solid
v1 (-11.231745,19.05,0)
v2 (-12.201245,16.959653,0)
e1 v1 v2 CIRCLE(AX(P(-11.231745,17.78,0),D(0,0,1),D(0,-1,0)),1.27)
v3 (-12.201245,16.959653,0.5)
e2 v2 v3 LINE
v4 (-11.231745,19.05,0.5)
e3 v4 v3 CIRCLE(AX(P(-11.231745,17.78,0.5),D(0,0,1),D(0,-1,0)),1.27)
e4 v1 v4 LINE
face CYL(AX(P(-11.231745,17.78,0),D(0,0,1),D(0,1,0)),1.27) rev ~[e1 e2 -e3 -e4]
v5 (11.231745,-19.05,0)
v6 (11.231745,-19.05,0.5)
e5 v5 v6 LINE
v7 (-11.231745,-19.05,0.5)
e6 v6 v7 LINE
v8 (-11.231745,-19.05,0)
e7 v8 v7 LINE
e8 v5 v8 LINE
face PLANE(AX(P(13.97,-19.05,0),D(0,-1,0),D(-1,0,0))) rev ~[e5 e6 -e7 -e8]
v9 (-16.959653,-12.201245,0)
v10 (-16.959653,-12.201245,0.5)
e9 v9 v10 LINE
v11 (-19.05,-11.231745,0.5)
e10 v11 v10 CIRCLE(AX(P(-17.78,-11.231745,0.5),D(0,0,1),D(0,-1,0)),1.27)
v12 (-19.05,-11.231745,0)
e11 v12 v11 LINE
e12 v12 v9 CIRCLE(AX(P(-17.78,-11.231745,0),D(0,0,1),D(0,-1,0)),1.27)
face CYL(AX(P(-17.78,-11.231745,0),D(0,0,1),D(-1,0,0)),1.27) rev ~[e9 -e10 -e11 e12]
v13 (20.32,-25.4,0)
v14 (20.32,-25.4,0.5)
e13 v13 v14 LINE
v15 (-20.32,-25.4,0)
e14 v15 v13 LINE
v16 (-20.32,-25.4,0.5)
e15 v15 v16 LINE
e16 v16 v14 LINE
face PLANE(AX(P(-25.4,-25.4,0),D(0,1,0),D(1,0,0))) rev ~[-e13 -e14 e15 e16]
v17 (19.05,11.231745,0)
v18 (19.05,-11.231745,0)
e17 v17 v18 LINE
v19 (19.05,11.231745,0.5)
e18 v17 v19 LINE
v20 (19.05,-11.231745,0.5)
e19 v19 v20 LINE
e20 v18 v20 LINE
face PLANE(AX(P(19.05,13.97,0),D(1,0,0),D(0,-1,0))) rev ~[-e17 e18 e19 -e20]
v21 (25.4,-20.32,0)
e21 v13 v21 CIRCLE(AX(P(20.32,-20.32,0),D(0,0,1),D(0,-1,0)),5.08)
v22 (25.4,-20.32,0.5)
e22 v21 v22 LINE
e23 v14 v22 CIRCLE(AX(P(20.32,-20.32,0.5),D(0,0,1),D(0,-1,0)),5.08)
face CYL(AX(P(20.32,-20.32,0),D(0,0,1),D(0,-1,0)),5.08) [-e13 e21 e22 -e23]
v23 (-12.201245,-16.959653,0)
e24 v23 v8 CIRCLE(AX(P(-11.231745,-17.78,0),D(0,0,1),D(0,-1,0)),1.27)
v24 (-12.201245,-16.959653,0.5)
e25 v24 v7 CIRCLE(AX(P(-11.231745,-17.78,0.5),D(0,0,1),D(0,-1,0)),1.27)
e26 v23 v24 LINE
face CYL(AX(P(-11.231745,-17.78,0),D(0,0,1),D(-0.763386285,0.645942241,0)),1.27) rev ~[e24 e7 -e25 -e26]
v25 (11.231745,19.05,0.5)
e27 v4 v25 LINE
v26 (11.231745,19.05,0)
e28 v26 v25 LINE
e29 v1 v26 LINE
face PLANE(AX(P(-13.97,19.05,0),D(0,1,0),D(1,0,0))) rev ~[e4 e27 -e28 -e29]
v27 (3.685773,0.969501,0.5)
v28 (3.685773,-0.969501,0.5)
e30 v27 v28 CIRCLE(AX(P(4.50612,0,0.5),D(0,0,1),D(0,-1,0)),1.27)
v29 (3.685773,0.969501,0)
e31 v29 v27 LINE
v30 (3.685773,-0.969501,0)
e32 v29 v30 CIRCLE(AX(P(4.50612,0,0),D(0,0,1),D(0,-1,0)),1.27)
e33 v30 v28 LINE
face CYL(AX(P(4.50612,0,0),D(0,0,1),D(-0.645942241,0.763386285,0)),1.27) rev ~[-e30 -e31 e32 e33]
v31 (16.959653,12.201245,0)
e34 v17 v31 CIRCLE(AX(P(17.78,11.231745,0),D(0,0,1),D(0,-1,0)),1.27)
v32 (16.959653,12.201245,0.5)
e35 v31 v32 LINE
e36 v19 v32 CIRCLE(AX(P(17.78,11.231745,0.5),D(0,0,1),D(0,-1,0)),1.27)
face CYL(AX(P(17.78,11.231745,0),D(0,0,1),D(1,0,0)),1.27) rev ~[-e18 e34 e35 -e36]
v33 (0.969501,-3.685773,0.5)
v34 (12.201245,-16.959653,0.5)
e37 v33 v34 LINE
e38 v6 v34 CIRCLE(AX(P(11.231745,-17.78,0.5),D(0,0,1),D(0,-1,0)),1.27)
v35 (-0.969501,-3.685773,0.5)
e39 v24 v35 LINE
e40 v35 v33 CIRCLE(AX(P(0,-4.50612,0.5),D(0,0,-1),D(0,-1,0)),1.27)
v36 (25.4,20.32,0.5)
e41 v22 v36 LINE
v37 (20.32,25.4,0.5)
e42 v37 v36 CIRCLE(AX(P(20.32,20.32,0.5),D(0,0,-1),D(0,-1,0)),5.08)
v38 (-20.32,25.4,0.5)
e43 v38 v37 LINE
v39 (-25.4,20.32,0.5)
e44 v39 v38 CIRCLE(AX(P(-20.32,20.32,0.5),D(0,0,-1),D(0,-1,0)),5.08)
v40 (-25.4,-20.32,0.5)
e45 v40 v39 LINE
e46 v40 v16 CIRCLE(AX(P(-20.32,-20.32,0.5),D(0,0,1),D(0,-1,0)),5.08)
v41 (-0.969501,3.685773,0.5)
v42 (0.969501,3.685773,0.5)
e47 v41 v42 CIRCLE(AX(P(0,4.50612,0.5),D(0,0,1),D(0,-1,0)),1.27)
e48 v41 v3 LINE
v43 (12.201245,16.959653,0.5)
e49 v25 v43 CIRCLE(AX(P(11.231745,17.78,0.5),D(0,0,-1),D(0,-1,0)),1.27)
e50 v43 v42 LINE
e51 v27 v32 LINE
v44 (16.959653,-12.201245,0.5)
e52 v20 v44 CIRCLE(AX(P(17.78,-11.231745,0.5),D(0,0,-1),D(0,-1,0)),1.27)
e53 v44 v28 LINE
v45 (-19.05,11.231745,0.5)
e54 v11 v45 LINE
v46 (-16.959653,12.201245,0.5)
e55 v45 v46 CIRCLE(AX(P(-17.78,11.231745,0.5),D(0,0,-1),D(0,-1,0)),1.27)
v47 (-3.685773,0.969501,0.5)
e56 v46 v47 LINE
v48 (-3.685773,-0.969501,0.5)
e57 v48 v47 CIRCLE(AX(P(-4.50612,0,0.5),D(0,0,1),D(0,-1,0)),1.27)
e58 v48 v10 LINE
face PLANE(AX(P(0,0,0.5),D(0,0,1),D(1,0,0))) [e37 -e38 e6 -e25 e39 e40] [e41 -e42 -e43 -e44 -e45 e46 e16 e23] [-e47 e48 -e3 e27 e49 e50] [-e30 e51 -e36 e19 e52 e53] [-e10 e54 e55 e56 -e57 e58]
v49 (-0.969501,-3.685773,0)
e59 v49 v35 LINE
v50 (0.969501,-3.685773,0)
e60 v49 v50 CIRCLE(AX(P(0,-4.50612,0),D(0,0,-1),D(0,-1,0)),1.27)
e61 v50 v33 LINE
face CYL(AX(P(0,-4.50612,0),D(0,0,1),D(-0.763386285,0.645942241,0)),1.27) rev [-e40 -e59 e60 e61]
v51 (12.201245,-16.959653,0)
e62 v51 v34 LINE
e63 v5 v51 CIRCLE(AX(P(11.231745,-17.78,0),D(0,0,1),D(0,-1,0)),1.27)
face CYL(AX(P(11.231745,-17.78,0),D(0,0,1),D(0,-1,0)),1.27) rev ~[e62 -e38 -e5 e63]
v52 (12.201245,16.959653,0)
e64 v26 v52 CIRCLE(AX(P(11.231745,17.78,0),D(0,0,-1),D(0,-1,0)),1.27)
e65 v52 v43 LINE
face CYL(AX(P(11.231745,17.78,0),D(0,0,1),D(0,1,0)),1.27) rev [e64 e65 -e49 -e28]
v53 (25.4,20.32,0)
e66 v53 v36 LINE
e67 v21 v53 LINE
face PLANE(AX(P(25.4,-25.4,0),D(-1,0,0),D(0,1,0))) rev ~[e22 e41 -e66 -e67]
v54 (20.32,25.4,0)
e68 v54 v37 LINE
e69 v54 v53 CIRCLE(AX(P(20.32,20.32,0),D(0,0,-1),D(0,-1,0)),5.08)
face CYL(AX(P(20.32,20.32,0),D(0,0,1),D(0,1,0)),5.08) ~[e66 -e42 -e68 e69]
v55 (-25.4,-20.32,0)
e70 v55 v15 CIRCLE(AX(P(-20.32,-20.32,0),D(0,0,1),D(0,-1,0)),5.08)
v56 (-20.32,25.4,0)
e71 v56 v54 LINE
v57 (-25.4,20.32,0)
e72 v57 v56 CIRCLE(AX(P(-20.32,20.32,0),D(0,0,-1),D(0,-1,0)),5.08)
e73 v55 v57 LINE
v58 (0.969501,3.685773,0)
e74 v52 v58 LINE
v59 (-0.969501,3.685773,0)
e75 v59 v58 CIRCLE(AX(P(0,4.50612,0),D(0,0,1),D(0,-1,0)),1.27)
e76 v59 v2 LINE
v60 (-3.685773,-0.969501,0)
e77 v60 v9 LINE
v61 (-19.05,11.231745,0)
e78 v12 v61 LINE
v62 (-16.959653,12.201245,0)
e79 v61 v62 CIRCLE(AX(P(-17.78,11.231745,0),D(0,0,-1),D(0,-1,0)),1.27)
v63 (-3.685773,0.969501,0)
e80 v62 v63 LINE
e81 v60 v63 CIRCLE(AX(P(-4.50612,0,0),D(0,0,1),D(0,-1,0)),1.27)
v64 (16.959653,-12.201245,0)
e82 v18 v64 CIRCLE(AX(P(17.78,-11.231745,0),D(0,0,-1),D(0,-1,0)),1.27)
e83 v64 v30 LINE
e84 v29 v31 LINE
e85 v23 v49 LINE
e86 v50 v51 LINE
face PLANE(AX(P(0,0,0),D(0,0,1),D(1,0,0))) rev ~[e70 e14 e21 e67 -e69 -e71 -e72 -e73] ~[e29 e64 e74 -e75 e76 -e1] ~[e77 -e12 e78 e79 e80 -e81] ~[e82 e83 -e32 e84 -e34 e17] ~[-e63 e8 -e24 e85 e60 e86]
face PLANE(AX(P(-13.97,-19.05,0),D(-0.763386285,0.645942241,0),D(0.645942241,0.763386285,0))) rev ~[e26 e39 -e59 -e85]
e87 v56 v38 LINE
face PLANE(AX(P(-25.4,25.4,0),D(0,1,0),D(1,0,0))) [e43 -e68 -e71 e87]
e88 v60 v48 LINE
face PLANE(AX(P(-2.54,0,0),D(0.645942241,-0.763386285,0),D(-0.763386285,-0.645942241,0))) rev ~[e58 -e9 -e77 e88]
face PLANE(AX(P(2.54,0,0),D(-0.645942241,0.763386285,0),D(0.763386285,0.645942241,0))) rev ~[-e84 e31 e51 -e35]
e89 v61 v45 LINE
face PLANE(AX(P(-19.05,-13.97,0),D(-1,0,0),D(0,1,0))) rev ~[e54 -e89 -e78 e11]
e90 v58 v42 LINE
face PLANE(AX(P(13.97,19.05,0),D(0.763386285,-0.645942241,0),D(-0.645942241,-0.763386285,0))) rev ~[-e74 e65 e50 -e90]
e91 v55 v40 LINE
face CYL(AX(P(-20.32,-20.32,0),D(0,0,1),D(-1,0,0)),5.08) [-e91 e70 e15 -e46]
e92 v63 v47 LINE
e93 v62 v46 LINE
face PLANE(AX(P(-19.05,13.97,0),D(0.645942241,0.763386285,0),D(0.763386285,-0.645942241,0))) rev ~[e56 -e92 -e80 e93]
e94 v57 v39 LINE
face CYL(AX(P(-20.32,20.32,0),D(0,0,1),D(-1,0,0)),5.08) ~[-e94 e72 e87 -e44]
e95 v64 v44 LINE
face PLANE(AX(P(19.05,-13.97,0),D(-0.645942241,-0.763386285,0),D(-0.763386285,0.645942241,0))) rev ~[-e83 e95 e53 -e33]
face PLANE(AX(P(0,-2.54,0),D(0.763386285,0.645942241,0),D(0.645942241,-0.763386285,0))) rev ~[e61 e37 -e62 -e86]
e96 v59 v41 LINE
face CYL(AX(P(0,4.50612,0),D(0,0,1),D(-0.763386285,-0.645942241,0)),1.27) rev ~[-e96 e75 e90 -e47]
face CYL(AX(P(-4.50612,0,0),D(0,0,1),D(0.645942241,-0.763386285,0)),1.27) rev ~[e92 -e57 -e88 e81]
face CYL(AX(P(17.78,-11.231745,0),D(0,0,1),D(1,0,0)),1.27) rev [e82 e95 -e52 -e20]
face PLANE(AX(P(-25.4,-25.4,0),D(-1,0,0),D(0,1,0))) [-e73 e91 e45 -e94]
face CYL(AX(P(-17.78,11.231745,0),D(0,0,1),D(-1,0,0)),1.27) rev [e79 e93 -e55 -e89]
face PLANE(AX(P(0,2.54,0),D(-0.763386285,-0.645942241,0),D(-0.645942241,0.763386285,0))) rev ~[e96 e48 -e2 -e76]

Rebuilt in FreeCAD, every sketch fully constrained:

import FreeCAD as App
import Part
import Sketcher
from FreeCAD import Vector
Q = App.Units.Quantity


def edges_at(feature, points):
    """Names of the edges that pass closest to the given points."""
    edges = feature.Shape.Edges
    near = lambda p: min(range(len(edges)), key=lambda i: edges[i].distToShape(Part.Vertex(*p))[0])
    return sorted({f"Edge{near(p) + 1}" for p in points})


def add_polygon(sketch, points):
    """Adds a closed chain of lines whose ends are joined by coincident constraints."""
    first, n = sketch.GeometryCount, len(points)
    for a, b in zip(points, points[1:] + points[:1]):
        sketch.addGeometry(Part.LineSegment(App.Vector(*a, 0), App.Vector(*b, 0)), False)
    for i in range(n):
        sketch.addConstraint(Sketcher.Constraint("Coincident", first + i, 2, first + (i + 1) % n, 1))

doc = App.newDocument("Part")
body = doc.addObject("PartDesign::Body", "Body")

# Sketch on XY plane
sketch1 = body.newObject("Sketcher::SketchObject", "Sketch")
sketch1.AttachmentSupport = (doc.getObject("XY_Plane"), [""])
sketch1.MapMode = "FlatFace"
add_polygon(sketch1, [(-25, 25), (-25, -25), (25, -25), (25, 25)])  # lines 0-3
add_polygon(sketch1, [(-14, -19), (0, -3), (14, -19)])  # lines 4-6
add_polygon(sketch1, [(-19, -14), (-19, 14), (-3, 0)])  # lines 7-9
add_polygon(sketch1, [(19, 14), (19, -14), (3, 0)])  # lines 10-12
add_polygon(sketch1, [(-14, 19), (14, 19), (0, 3)])  # lines 13-15
sketch1.addConstraint(Sketcher.Constraint("Vertical", 0))
sketch1.addConstraint(Sketcher.Constraint("Horizontal", 1))
sketch1.addConstraint(Sketcher.Constraint("Vertical", 2))
sketch1.addConstraint(Sketcher.Constraint("Horizontal", 3))
sketch1.addConstraint(Sketcher.Constraint("Horizontal", 6))
sketch1.addConstraint(Sketcher.Constraint("Vertical", 7))
sketch1.addConstraint(Sketcher.Constraint("Vertical", 10))
sketch1.addConstraint(Sketcher.Constraint("Horizontal", 13))
sketch1.addConstraint(Sketcher.Constraint("Symmetric", 0, 2, 2, 2, -1, 1))
sketch1.addConstraint(Sketcher.Constraint("Symmetric", 7, 2, 10, 2, -1, 1))
sketch1.addConstraint(Sketcher.Constraint("Symmetric", 8, 2, 11, 2, -1, 1))
sketch1.addConstraint(Sketcher.Constraint("Symmetric", 6, 2, 13, 2, -1, 1))
sketch1.addConstraint(Sketcher.Constraint("Symmetric", 4, 2, 14, 2, -1, 1))
sketch1.addConstraint(Sketcher.Constraint("PointOnObject", 4, 2, -2))
sketch1.addConstraint(Sketcher.Constraint("PointOnObject", 8, 2, -1))
sketch1.addConstraint(Sketcher.Constraint("Perpendicular", 4, 8))
sketch1.addConstraint(Sketcher.Constraint("Perpendicular", 5, 9))
sketch1.addConstraint(Sketcher.Constraint("Parallel", 9, 12))
sketch1.addConstraint(Sketcher.Constraint("Perpendicular", 12, 15))
sketch1.addConstraint(Sketcher.Constraint("Horizontal", 9, 2, 10, 2))
sketch1.addConstraint(Sketcher.Constraint("Equal", 3, 0))
sketch1.addConstraint(Sketcher.Constraint("Equal", 13, 7))
sketch1.addConstraint(Sketcher.Constraint("DistanceX", 1, 1, 1, 2, Q("2 in")))
sketch1.addConstraint(Sketcher.Constraint("DistanceX", 6, 2, 6, 1, Q("1.1 in")))
sketch1.addConstraint(Sketcher.Constraint("DistanceY", 4, 2, -1, 1, Q("0.1 in")))
sketch1.addConstraint(Sketcher.Constraint("DistanceX", 8, 2, -1, 1, Q("0.1 in")))
sketch1.addConstraint(Sketcher.Constraint("DistanceX", 7, 2, 6, 2, Q("0.2 in")))
pad1 = body.newObject("PartDesign::Pad", "Pad")
pad1.Profile = sketch1
pad1.Length = 0.5
doc.recompute()

fillet = body.newObject("PartDesign::Fillet", "Fillet")
fillet.Base = (pad1, edges_at(pad1, [
    (0, -2.54, 0.25),
    (-19.05, 13.97, 0.25),
    (-13.97, -19.05, 0.25),
    (2.54, 0, 0.25),
    (19.05, -13.97, 0.25),
    (13.97, -19.05, 0.25),
    (-2.54, 0, 0.25),
    (0, 2.54, 0.25),
    (19.05, 13.97, 0.25),
    (13.97, 19.05, 0.25),
    (-19.05, -13.97, 0.25),
    (-13.97, 19.05, 0.25),
]))
fillet.Radius = Q("0.05 in")
doc.recompute()

fillet2 = body.newObject("PartDesign::Fillet", "Fillet001")
fillet2.Base = (fillet, edges_at(fillet, [
    (25.4, 25.4, 0.25),
    (-25.4, 25.4, 0.25),
    (-25.4, -25.4, 0.25),
    (25.4, -25.4, 0.25),
]))
fillet2.Radius = Q("0.2 in")

doc.recompute()
